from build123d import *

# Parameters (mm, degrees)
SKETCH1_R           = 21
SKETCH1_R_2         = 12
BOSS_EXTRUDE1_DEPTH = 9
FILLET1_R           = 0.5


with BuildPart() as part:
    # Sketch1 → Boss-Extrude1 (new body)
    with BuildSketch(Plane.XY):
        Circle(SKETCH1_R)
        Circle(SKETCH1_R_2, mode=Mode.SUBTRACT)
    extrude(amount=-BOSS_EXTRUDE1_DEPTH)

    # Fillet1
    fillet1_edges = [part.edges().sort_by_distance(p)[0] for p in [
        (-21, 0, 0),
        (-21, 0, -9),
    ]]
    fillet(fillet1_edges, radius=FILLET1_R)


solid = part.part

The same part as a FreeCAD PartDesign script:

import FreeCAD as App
import Part
import Sketcher


def edges_at(feature, points):
    """Names of the edges that pass closest to the given points."""
    edges = feature.Shape.Edges
    near = lambda p: min(range(len(edges)), key=lambda i: edges[i].distToShape(Part.Vertex(*p))[0])
    return sorted({f"Edge{near(p) + 1}" for p in points})

doc = App.newDocument("Part")
body = doc.addObject("PartDesign::Body", "Body")

# Sketch on XY plane
sketch1 = doc.addObject("Sketcher::SketchObject", "Sketch")
body.addObject(sketch1)
sketch1.AttachmentSupport = (doc.XY_Plane, [""])
sketch1.MapMode = "FlatFace"
sketch1.addGeometry(Part.Circle(App.Vector(0, 0, 0), App.Vector(0, 0, 1), 21), False)
sketch1.addGeometry(Part.Circle(App.Vector(0, 0, 0), App.Vector(0, 0, 1), 12), False)
sketch1.addConstraint(Sketcher.Constraint("Coincident", 0, 3, -1, 1))
sketch1.addConstraint(Sketcher.Constraint("Coincident", 1, 3, -1, 1))
sketch1.addConstraint(Sketcher.Constraint("Diameter", 0, 42.0))
sketch1.addConstraint(Sketcher.Constraint("Diameter", 1, 24.0))
pad1 = doc.addObject("PartDesign::Pad", "Pad")
body.addObject(pad1)
pad1.Profile = sketch1
pad1.Length = 9
pad1.Reversed = True
doc.recompute()

fillet = doc.addObject("PartDesign::Fillet", "Fillet")
body.addObject(fillet)
fillet.Base = (pad1, edges_at(pad1, [(-21, 0, 0), (-21, 0, -9)]))
fillet.Radius = 0.5

doc.recompute()
